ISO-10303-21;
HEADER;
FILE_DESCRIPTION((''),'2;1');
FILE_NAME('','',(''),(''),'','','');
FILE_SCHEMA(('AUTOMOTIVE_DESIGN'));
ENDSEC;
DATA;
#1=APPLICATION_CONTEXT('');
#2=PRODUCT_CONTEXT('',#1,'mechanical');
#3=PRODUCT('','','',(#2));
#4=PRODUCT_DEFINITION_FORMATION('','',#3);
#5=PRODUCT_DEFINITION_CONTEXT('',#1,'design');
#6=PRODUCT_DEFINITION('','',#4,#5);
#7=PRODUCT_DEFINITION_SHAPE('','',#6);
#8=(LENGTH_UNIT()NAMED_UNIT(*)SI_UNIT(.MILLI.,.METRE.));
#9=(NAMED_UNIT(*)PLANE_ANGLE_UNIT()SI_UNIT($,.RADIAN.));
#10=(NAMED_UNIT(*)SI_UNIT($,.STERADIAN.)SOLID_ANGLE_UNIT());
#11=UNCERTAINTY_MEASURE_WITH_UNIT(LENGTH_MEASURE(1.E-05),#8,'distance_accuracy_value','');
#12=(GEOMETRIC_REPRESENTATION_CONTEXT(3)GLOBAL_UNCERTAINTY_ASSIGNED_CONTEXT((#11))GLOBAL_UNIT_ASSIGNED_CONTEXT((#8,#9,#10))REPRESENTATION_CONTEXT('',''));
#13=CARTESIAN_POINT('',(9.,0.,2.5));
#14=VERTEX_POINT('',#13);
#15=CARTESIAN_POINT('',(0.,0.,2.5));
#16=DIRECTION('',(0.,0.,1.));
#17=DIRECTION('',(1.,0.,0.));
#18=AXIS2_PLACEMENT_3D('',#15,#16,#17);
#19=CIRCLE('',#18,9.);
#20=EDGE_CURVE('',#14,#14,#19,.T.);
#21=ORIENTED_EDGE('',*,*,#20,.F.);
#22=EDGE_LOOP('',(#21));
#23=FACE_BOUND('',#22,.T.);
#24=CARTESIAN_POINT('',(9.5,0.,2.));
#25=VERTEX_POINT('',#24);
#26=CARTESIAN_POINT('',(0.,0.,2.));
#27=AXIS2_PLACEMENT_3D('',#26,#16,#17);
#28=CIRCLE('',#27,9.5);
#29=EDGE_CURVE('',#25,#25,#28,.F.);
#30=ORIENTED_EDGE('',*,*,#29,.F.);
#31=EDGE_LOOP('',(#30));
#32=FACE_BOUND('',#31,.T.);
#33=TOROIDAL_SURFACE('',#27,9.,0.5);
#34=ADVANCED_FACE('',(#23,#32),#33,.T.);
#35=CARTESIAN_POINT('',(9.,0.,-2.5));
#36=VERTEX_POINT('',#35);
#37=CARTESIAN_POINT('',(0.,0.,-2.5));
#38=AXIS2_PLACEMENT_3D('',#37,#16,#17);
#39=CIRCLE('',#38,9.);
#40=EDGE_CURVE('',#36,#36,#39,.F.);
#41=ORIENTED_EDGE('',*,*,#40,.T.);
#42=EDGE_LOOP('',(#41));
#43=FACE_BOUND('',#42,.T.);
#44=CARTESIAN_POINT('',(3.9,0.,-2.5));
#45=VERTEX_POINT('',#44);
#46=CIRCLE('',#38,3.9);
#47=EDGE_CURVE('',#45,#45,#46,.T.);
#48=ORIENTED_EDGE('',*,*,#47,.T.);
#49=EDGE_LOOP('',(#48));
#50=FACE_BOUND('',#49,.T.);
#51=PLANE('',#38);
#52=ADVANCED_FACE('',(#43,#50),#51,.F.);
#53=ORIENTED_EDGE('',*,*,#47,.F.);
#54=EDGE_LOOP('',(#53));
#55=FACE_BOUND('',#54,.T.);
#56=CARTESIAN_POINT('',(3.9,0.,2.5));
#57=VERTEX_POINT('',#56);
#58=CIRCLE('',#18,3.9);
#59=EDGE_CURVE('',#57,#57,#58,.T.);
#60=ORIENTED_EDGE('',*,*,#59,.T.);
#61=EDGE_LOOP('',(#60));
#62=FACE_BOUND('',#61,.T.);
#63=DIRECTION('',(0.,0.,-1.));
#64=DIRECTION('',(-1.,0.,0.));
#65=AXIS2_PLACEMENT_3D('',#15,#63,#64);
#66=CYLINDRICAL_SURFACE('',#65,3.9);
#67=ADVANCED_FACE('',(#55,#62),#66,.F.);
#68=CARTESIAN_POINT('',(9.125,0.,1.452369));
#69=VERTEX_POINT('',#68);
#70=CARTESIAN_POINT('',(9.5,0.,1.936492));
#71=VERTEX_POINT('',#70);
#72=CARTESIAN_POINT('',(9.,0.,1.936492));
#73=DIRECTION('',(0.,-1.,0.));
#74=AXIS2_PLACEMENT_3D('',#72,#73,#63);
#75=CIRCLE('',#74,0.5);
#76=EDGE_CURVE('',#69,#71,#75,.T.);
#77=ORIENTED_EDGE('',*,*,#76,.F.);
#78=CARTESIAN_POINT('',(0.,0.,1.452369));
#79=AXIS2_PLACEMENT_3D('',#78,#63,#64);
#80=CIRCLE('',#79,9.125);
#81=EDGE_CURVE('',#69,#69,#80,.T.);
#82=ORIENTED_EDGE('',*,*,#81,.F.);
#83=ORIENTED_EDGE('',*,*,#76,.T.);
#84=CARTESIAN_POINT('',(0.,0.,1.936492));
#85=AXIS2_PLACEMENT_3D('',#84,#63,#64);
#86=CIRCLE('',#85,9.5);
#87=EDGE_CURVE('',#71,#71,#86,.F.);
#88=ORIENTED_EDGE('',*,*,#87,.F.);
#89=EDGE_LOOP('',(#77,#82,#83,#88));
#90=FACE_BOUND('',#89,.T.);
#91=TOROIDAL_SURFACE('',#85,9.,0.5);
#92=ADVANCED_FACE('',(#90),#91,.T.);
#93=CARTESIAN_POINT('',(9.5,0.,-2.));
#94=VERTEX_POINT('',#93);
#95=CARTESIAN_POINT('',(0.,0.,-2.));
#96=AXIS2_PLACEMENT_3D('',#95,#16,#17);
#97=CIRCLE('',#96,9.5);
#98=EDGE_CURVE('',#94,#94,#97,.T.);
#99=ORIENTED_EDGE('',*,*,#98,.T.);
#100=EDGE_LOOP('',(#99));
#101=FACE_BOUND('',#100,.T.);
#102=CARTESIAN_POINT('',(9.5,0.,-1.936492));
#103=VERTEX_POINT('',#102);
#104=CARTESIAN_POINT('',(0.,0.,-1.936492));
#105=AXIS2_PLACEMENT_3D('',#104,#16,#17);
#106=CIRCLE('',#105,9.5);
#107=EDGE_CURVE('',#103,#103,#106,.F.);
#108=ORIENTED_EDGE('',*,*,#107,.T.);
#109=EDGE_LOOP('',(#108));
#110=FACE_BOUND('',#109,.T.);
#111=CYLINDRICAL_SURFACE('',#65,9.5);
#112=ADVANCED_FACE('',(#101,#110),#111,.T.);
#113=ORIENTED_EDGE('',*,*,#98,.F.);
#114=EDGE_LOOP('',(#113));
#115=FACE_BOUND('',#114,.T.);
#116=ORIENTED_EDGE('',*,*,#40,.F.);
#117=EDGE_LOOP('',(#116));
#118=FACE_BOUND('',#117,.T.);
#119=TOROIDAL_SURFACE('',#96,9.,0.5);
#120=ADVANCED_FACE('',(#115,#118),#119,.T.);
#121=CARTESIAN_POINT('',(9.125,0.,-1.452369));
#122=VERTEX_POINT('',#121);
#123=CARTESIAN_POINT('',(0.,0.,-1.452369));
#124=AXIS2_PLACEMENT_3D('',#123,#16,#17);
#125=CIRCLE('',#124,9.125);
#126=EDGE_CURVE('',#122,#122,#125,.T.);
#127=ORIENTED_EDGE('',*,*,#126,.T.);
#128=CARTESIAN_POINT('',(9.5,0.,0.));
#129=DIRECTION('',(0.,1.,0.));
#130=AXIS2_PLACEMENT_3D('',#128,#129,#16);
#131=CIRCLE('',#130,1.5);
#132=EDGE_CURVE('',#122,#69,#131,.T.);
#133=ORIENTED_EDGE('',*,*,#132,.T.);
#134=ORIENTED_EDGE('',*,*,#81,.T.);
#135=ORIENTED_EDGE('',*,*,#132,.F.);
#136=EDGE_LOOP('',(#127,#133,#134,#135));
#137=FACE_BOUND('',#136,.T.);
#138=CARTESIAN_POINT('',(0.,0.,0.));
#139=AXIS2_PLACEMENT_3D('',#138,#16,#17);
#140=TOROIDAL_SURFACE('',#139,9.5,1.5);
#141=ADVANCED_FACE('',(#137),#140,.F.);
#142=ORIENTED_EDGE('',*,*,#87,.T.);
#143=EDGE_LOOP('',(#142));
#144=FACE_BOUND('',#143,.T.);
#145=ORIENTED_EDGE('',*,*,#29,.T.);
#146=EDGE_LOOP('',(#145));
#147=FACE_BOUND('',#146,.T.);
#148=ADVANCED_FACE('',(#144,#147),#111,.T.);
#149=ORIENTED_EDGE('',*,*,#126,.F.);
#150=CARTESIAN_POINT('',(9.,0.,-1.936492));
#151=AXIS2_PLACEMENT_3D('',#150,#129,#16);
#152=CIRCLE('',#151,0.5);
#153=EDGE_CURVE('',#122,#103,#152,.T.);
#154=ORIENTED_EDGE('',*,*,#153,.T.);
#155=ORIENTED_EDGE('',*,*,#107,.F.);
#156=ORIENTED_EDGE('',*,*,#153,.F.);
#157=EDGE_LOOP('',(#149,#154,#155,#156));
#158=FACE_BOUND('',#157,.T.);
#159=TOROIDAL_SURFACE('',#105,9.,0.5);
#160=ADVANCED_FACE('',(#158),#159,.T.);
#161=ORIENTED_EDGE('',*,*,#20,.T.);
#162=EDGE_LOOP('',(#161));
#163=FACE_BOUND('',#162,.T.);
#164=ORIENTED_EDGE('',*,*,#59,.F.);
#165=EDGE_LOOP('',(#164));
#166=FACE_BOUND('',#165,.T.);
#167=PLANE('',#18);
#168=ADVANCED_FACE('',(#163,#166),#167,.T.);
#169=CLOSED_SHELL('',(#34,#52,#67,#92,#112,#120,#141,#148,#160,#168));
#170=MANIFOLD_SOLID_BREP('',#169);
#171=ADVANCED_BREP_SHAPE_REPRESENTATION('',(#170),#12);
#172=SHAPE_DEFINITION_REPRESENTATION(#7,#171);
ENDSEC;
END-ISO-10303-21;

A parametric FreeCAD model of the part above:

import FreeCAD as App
import Part
import Sketcher

V = App.Vector
Q = App.Units.Quantity


def edges_at(feature, points):
    """Names of the edges that pass closest to the given points."""
    edges = feature.Shape.Edges
    near = lambda p: min(range(len(edges)), key=lambda i: edges[i].distToShape(Part.Vertex(*p))[0])
    return sorted({f"Edge{near(p) + 1}" for p in points})

doc = App.newDocument("Part")
params = doc.addObject("Spreadsheet::Sheet", "Params")
for row, (alias, value) in enumerate([
    ("sketch1_diameter", "19 mm"),
    ("sketch1_diameter2", "7.8 mm"),
    ("pad1_length", "5 mm"),
    ("sketch2_diameter", "3 mm"),
    ("sketch3_diameter", "19 mm"),
    ("fillet_radius", "0.5 mm"),
    ("fillet2_radius", "0.5 mm"),
], start=1):
    params.set(f"A{row}", alias)
    params.set(f"B{row}", "=" + value)
    params.setAlias(f"B{row}", alias)

body = doc.addObject("PartDesign::Body", "Body")

# Sketch on XY plane
sketch1 = body.newObject("Sketcher::SketchObject", "Sketch")
sketch1.AttachmentSupport = (doc.getObject("XY_Plane"), [""])
sketch1.MapMode = "FlatFace"
sketch1.addGeometry(Part.Circle(V(0, 0, 0), V(0, 0, 1), 9.5), False)
sketch1.addGeometry(Part.Circle(V(0, 0, 0), V(0, 0, 1), 3.9), False)
sketch1.addConstraint(Sketcher.Constraint("Coincident", 0, 3, -1, 1))
sketch1.addConstraint(Sketcher.Constraint("Coincident", 1, 3, -1, 1))
sketch1.addConstraint(Sketcher.Constraint("Diameter", 0, Q("19 mm")))
sketch1.addConstraint(Sketcher.Constraint("Diameter", 1, Q("7.8 mm")))
sketch1.setExpression("Constraints[2]", "Params.sketch1_diameter")
sketch1.setExpression("Constraints[3]", "Params.sketch1_diameter2")
pad1 = body.newObject("PartDesign::Pad", "Pad")
pad1.Profile = sketch1
pad1.setExpression("Length", "Params.pad1_length")
pad1.Midplane = True

# Sketch on XZ plane
sketch2 = body.newObject("Sketcher::SketchObject", "Sketch001")
sketch2.AttachmentSupport = (doc.getObject("XZ_Plane"), [""])
sketch2.MapMode = "FlatFace"
sketch2.addGeometry(Part.Circle(V(9.5, 0, 0), V(0, 0, 1), 1.5), False)
sketch2.addConstraint(Sketcher.Constraint("PointOnObject", 0, 3, -1))
sketch2.addConstraint(Sketcher.Constraint("Diameter", 0, Q("3 mm")))
sketch2.addConstraint(Sketcher.Constraint("DistanceX", -1, 1, 0, 3, Q("9.5 mm")))
sketch2.setExpression("Constraints[1]", "Params.sketch2_diameter")

# Sketch on XY plane
sketch3 = body.newObject("Sketcher::SketchObject", "Sketch002")
sketch3.AttachmentSupport = (doc.getObject("XY_Plane"), [""])
sketch3.MapMode = "FlatFace"
sketch3.addGeometry(Part.Circle(V(0, 0, 0), V(0, 0, 1), 9.5), False)
sketch3.addConstraint(Sketcher.Constraint("Coincident", 0, 3, -1, 1))
sketch3.addConstraint(Sketcher.Constraint("Diameter", 0, Q("19 mm")))
sketch3.setExpression("Constraints[1]", "Params.sketch3_diameter")
doc.recompute()

subtractivepipe = body.newObject("PartDesign::SubtractivePipe", "SubtractivePipe")
subtractivepipe.Profile = sketch2
subtractivepipe.Spine = (sketch3, ["Edge1"])
doc.recompute()

fillet = body.newObject("PartDesign::Fillet", "Fillet")
fillet.Base = (subtractivepipe, edges_at(subtractivepipe, [(-9.5, 0, -2.5), (-9.5, 0, 2.5)]))
fillet.setExpression("Radius", "Params.fillet_radius")
doc.recompute()

fillet2 = body.newObject("PartDesign::Fillet", "Fillet001")
fillet2.Base = (fillet, edges_at(fillet, [(-9.5, 0, 1.5), (-9.5, 0, -1.5)]))
fillet2.setExpression("Radius", "Params.fillet2_radius")

doc.recompute()
